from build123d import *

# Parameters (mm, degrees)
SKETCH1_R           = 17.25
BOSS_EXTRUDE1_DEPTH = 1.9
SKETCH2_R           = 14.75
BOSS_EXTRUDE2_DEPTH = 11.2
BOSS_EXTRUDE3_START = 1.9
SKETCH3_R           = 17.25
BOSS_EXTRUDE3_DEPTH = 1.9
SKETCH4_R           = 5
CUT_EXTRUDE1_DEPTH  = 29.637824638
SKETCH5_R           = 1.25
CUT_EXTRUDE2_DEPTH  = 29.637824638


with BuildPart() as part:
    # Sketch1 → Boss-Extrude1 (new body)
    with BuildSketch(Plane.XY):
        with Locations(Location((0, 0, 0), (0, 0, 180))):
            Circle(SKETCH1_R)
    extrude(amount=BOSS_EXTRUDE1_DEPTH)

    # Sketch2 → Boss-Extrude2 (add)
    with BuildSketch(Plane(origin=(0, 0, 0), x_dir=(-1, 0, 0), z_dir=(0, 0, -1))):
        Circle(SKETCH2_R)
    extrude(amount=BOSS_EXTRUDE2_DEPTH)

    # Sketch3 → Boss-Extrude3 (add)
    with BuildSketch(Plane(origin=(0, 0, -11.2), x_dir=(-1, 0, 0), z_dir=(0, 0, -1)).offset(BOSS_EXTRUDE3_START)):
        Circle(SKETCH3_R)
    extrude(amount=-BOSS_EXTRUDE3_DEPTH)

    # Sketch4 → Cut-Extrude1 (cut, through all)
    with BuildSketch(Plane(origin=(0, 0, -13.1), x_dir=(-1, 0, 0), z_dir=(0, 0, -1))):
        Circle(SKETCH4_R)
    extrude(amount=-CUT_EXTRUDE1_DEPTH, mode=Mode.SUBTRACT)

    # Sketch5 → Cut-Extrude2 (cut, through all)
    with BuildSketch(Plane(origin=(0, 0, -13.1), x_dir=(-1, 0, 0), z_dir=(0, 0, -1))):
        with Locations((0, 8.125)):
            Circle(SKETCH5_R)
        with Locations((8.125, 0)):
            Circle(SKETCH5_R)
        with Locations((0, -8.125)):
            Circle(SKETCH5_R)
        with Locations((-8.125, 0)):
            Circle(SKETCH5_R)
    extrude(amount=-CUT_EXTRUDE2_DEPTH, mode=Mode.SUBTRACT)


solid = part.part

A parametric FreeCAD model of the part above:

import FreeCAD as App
import Part
import Sketcher
Q = App.Units.Quantity

doc = App.newDocument("Part")
body = doc.addObject("PartDesign::Body", "Body")

sketch1 = body.newObject("Sketcher::SketchObject", "Sketch")
sketch1.AttachmentSupport = (doc.getObject("XY_Plane"), [""])
sketch1.MapMode = "FlatFace"
sketch1.addGeometry(Part.Circle(App.Vector(0, 0, 0), App.Vector(0, 0, 1), 17), False)
sketch1.addConstraint([
    Sketcher.Constraint("Coincident", 0, 3, -1, 1),
    Sketcher.Constraint("Diameter", 0, Q("34.5 mm")),
])
pad1 = body.newObject("PartDesign::Pad", "Pad")
pad1.Profile = sketch1
pad1.Length = 1.9

sketch2 = body.newObject("Sketcher::SketchObject", "Sketch001")
sketch2.AttachmentSupport = (doc.getObject("XY_Plane"), [""])
sketch2.MapMode = "FlatFace"
sketch2.addGeometry(Part.Circle(App.Vector(0, 0, 0), App.Vector(0, 0, 1), 15), False)
sketch2.addConstraint([
    Sketcher.Constraint("Coincident", 0, 3, -1, 1),
    Sketcher.Constraint("Diameter", 0, Q("29.5 mm")),
])
pad2 = body.newObject("PartDesign::Pad", "Pad001")
pad2.Profile = sketch2
pad2.Length = 11.2
pad2.Reversed = True

sketch3 = body.newObject("Sketcher::SketchObject", "Sketch002")
sketch3.AttachmentSupport = (doc.getObject("XY_Plane"), [""])
sketch3.MapMode = "FlatFace"
sketch3.AttachmentOffset = App.Placement(App.Vector(0, 0, -13.1), App.Rotation())
sketch3.addGeometry(Part.Circle(App.Vector(0, 0, 0), App.Vector(0, 0, 1), 17), False)
sketch3.addConstraint([
    Sketcher.Constraint("Coincident", 0, 3, -1, 1),
    Sketcher.Constraint("Diameter", 0, Q("34.5 mm")),
])
pad3 = body.newObject("PartDesign::Pad", "Pad002")
pad3.Profile = sketch3
pad3.Length = 1.9

sketch4 = body.newObject("Sketcher::SketchObject", "Sketch003")
sketch4.AttachmentSupport = (doc.getObject("XY_Plane"), [""])
sketch4.MapMode = "FlatFace"
sketch4.AttachmentOffset = App.Placement(App.Vector(0, 0, -13.1), App.Rotation())
sketch4.addGeometry(Part.Circle(App.Vector(0, 0, 0), App.Vector(0, 0, 1), 5), False)
sketch4.addConstraint([
    Sketcher.Constraint("Coincident", 0, 3, -1, 1),
    Sketcher.Constraint("Diameter", 0, Q("10 mm")),
])
pocket1 = body.newObject("PartDesign::Pocket", "Pocket")
pocket1.Profile = sketch4
pocket1.Type = "ThroughAll"
pocket1.Reversed = True

sketch5 = body.newObject("Sketcher::SketchObject", "Sketch004")
sketch5.AttachmentSupport = (doc.getObject("XY_Plane"), [""])
sketch5.MapMode = "FlatFace"
sketch5.AttachmentOffset = App.Placement(App.Vector(0, 0, -13.1), App.Rotation())
sketch5.addGeometry([
    Part.Circle(App.Vector(0, 8.1, 0), App.Vector(0, 0, 1), 1.2),
    Part.Circle(App.Vector(-8.1, 0, 0), App.Vector(0, 0, 1), 1.2),
    Part.Circle(App.Vector(0, -8.1, 0), App.Vector(0, 0, 1), 1.2),
    Part.Circle(App.Vector(8.1, 0, 0), App.Vector(0, 0, 1), 1.2),
], False)
sketch5.addConstraint([
    Sketcher.Constraint("Equal", 0, 1),
    Sketcher.Constraint("Equal", 1, 2),
    Sketcher.Constraint("Equal", 2, 3),
    Sketcher.Constraint("Symmetric", 0, 3, 2, 3, -1, 1),
    Sketcher.Constraint("Symmetric", 1, 3, 3, 3, -1, 1),
    Sketcher.Constraint("PointOnObject", 0, 3, -2),
    Sketcher.Constraint("PointOnObject", 1, 3, -1),
    Sketcher.Constraint("Diameter", 0, Q("2.5 mm")),
    Sketcher.Constraint("DistanceY", 2, 3, 0, 3, Q("16.25 mm")),
    Sketcher.Constraint("DistanceX", 1, 3, 3, 3, Q("16.25 mm")),
])
pocket2 = body.newObject("PartDesign::Pocket", "Pocket001")
pocket2.Profile = sketch5
pocket2.Type = "ThroughAll"
pocket2.Reversed = True

doc.recompute()
